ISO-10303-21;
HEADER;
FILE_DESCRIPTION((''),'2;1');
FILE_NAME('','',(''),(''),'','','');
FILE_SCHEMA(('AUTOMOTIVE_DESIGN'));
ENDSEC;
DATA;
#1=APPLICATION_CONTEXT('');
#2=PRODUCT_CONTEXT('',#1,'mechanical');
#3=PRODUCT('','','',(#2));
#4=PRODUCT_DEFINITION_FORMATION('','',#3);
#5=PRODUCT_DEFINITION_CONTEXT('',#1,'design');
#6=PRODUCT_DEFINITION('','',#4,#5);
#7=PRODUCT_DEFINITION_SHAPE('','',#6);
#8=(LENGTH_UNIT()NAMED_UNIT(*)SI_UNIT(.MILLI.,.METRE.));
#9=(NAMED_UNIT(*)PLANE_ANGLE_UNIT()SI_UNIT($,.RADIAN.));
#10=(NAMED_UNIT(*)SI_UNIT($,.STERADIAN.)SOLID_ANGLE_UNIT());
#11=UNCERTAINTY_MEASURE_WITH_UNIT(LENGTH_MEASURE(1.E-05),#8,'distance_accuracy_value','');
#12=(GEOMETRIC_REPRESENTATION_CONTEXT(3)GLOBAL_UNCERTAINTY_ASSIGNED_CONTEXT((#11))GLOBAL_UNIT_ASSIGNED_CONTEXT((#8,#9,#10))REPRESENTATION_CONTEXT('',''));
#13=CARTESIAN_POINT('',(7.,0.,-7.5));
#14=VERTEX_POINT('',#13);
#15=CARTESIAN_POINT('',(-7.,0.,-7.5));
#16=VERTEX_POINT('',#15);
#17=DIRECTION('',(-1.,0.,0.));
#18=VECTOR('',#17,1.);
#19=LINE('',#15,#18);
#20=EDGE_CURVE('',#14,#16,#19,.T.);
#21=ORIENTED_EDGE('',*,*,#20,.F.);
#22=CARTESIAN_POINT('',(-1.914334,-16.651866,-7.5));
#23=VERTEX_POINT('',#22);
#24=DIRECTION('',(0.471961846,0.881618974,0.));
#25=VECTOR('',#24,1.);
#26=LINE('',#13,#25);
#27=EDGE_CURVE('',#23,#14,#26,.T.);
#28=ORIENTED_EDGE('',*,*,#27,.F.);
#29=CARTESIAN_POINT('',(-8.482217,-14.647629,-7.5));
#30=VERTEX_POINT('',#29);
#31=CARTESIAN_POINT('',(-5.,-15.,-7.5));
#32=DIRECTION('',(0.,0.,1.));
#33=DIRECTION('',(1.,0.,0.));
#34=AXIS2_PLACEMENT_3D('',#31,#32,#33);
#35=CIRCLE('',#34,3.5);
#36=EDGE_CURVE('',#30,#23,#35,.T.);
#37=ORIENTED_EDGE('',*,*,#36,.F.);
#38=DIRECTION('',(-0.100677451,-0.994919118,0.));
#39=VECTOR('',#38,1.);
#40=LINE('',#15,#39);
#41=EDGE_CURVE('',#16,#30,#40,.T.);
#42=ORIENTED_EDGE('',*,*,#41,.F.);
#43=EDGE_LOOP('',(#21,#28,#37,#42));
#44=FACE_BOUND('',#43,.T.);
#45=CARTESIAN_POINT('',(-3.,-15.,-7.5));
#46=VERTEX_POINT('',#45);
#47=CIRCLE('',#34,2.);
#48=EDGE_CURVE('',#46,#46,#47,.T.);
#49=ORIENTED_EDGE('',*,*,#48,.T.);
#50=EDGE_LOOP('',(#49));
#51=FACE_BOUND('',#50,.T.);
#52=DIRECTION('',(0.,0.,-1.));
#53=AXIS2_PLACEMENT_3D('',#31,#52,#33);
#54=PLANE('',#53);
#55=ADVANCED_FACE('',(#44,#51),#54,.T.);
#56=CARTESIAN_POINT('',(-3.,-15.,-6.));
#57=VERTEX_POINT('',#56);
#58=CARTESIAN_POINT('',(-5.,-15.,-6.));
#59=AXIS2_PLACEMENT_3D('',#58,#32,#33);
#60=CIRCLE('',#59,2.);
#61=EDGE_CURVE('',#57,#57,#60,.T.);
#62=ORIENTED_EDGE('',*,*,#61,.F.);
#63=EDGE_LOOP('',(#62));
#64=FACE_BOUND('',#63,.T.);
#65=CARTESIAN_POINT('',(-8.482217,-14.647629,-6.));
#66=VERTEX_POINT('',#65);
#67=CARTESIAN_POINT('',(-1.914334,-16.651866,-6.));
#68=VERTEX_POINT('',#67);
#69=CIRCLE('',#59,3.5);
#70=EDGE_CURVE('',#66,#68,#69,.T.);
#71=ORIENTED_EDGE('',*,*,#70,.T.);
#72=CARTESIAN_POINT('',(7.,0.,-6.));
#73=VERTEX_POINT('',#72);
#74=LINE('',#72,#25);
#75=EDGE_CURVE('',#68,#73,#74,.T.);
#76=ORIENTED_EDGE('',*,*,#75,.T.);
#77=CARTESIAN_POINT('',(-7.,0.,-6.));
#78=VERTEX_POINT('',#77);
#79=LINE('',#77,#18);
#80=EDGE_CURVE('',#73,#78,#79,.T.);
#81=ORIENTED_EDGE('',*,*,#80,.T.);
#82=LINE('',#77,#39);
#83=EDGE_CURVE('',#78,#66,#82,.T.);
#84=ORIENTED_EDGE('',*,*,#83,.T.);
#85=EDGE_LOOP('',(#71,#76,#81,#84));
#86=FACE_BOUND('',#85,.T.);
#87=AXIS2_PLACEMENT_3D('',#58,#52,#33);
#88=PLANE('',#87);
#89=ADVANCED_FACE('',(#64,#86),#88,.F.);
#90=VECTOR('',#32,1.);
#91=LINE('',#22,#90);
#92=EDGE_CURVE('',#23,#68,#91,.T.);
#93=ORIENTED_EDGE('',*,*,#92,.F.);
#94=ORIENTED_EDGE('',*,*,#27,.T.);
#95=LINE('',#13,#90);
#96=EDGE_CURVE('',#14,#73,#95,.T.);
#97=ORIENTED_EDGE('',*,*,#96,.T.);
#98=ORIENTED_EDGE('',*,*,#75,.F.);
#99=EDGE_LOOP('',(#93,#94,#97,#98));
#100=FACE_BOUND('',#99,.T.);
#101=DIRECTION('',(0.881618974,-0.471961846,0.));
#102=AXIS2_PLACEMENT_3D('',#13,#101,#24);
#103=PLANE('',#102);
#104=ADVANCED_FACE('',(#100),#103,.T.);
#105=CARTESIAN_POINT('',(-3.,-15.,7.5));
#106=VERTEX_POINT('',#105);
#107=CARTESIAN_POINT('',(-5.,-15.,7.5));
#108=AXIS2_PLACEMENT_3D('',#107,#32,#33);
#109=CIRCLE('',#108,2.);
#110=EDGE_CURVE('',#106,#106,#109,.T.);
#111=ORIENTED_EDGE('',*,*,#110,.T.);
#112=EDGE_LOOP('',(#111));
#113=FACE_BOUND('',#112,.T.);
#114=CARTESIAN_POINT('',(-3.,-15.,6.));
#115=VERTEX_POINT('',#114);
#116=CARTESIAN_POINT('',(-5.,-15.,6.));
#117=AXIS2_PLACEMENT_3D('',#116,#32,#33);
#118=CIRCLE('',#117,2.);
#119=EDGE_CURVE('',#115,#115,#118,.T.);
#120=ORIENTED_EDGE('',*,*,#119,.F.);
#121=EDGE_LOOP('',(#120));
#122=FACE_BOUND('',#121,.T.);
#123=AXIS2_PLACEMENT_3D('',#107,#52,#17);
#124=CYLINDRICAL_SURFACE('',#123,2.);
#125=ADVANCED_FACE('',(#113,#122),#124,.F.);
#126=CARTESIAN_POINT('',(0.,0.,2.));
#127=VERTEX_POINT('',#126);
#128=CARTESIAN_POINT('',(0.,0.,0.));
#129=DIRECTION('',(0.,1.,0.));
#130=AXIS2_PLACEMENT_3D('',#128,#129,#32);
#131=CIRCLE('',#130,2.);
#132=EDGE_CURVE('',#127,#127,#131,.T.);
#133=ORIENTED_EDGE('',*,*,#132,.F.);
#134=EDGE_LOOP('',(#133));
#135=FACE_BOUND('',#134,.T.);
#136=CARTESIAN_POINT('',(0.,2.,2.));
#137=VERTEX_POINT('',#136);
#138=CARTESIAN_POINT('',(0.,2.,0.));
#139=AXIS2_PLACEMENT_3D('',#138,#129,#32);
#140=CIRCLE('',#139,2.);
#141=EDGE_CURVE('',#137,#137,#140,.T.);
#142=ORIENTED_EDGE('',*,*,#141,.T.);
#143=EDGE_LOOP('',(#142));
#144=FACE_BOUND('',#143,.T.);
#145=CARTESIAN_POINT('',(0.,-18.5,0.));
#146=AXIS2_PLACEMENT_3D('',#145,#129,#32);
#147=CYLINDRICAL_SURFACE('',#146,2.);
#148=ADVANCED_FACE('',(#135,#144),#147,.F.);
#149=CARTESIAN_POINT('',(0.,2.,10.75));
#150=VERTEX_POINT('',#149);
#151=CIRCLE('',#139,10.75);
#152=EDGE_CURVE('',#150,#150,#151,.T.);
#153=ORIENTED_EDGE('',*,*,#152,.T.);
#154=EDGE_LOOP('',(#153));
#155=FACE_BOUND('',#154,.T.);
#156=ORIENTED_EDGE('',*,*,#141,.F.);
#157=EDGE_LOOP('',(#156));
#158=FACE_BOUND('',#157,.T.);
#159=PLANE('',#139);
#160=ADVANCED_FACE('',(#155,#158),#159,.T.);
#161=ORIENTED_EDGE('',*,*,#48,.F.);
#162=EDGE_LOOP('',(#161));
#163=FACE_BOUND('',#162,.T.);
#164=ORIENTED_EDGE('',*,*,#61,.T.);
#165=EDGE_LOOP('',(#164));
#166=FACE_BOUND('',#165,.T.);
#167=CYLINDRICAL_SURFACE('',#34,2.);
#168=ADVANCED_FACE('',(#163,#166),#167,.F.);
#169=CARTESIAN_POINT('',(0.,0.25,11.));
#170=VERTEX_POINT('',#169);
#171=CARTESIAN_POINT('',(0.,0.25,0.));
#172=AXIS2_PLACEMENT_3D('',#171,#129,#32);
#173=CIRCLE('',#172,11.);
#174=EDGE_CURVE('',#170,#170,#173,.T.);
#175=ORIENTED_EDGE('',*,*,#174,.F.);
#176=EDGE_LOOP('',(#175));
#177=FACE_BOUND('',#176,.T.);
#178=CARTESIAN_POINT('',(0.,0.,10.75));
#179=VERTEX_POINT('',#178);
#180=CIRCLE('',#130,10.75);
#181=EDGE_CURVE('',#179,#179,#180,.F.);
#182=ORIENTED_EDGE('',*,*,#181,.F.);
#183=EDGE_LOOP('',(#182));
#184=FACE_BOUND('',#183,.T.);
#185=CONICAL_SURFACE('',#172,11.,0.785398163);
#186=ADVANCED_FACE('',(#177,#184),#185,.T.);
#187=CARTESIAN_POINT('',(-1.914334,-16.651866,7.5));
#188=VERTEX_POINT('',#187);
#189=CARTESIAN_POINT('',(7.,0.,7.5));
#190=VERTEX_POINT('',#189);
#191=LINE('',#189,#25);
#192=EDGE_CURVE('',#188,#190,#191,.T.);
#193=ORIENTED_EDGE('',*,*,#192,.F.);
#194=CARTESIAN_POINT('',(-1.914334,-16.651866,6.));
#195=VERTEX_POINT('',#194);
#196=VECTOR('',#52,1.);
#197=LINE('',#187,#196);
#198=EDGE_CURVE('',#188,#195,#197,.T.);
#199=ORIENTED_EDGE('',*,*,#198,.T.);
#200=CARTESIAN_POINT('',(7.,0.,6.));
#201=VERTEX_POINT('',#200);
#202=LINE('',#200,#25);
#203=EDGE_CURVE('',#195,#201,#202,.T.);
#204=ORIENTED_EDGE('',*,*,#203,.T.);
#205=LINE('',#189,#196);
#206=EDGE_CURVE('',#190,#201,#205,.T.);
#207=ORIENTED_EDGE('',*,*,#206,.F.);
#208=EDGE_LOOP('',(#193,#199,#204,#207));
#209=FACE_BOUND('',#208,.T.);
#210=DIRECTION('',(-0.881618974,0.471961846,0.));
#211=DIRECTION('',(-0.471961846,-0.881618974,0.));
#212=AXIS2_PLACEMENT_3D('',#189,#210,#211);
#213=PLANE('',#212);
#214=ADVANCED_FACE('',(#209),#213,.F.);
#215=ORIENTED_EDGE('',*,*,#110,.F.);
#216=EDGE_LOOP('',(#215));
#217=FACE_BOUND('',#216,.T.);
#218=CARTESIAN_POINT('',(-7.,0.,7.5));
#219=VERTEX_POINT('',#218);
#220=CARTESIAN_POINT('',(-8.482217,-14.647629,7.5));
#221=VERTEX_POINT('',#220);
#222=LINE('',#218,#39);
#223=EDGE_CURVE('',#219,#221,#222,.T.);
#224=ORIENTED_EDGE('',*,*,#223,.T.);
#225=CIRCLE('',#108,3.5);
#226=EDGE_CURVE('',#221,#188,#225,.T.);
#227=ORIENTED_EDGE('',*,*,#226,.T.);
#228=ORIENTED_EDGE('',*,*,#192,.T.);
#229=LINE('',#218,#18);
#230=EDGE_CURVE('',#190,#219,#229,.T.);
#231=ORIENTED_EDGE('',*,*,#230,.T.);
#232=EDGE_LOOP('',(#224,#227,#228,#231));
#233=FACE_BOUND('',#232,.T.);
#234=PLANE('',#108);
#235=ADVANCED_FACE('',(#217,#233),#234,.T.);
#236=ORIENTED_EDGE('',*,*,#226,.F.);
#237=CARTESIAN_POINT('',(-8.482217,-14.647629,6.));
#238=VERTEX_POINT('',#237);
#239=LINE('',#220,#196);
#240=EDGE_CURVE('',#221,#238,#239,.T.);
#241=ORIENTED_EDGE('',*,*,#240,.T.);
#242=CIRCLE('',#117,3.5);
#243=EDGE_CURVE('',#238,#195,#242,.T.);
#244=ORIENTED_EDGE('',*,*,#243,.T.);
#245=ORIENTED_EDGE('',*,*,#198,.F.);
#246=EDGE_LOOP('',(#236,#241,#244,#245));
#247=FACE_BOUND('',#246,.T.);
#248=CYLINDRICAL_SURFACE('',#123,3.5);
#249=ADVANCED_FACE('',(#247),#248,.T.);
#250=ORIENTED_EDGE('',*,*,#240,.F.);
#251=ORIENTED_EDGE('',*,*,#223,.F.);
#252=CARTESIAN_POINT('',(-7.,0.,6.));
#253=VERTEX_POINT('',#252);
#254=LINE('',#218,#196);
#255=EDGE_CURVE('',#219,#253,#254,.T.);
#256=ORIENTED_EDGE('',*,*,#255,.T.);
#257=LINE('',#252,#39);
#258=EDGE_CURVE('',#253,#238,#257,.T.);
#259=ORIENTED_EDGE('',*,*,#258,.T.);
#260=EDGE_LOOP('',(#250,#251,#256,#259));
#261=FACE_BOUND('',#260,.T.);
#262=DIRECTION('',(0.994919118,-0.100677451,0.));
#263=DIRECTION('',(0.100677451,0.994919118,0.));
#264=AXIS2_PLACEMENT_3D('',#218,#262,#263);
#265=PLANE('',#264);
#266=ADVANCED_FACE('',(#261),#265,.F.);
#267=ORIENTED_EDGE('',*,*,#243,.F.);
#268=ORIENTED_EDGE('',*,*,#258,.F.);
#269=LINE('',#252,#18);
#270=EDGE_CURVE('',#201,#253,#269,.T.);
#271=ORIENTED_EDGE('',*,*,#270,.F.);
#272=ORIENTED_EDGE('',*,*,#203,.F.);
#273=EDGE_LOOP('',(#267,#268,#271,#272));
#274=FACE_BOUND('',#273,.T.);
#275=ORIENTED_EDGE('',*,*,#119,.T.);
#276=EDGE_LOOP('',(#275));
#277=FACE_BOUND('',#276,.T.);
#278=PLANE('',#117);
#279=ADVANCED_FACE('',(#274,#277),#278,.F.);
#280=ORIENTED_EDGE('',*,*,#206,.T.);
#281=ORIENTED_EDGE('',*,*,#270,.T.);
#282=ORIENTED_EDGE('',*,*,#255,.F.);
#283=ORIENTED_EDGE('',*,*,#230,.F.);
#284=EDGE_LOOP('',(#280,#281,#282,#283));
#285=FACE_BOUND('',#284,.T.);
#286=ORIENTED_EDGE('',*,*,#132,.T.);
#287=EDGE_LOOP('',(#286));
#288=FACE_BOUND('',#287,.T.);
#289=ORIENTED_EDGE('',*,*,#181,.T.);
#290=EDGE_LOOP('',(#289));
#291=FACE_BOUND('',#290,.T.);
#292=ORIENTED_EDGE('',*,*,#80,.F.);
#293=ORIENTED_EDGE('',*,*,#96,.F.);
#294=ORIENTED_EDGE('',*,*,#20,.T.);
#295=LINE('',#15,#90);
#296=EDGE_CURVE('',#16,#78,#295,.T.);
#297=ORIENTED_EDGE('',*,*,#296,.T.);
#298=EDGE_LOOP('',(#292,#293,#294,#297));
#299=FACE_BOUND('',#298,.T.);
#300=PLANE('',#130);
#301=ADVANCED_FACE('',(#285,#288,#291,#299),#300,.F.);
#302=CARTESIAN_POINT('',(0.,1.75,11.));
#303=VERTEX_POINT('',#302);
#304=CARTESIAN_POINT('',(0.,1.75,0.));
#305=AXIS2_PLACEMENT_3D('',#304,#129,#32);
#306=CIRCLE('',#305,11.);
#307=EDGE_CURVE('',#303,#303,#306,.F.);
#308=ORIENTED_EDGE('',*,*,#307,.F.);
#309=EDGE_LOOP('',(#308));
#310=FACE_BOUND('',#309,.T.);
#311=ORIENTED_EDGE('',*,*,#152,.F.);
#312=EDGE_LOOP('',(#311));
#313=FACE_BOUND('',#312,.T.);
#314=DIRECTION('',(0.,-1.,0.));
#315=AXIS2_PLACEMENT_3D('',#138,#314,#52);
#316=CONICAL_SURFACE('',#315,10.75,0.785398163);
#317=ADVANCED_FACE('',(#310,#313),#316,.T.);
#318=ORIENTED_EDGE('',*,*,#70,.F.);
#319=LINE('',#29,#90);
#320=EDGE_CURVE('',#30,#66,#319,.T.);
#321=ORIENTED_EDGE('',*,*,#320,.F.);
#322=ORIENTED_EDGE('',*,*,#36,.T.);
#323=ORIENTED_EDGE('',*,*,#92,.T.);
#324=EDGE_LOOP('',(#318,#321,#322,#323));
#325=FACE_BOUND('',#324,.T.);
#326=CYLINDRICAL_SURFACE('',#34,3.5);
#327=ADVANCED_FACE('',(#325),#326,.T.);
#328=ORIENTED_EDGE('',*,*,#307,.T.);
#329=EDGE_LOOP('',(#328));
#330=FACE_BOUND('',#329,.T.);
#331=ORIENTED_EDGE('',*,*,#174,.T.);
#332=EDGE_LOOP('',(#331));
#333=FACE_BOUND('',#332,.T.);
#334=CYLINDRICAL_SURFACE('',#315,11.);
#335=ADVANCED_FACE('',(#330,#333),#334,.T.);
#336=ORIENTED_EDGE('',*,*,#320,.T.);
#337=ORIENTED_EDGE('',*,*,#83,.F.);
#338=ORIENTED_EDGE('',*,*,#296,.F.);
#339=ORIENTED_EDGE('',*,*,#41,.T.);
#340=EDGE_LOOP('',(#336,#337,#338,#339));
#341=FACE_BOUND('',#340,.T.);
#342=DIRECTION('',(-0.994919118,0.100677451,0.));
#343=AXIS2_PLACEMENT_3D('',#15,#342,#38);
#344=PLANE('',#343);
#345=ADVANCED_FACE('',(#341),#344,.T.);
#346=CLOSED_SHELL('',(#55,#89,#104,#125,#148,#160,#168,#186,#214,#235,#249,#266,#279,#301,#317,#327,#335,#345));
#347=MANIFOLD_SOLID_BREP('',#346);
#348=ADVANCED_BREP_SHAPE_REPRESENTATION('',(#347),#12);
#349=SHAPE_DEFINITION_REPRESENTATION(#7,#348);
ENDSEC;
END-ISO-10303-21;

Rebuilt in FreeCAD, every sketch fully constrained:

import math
import FreeCAD as App
import Part
import Sketcher
from FreeCAD import Vector


def edges_at(feature, points):
    """Names of the edges that pass closest to the given points."""
    edges = feature.Shape.Edges
    near = lambda p: min(range(len(edges)), key=lambda i: edges[i].distToShape(Part.Vertex(*p))[0])
    return sorted({f"Edge{near(p) + 1}" for p in points})

doc = App.newDocument("Part")
params = doc.addObject("Spreadsheet::Sheet", "Params")
for row, (alias, value) in enumerate([
    ("sketch1_diameter", "22 mm"),
    ("pad1_length", "2 mm"),
    ("chamfer_size", "0.25 mm"),
    ("sketch2_diameter", "4 mm"),
    ("sketch2_radius", "3.5 mm"),
    ("sketch2_width", "14 mm"),
    ("pad2_length", "1.5 mm"),
    ("sketch3_diameter", "4 mm"),
], start=1):
    params.set(f"A{row}", alias)
    params.set(f"B{row}", "=" + value)
    params.setAlias(f"B{row}", alias)

body = doc.addObject("PartDesign::Body", "Body")

# Sketch on XZ plane
sketch1 = doc.addObject("Sketcher::SketchObject", "Sketch")
body.addObject(sketch1)
sketch1.AttachmentSupport = (doc.XZ_Plane, [""])
sketch1.MapMode = "FlatFace"
sketch1.addGeometry(Part.Circle(Vector(0, 0, 0), Vector(0, 0, 1), 11), False)
sketch1.addConstraint([
    Sketcher.Constraint("Coincident", 0, 3, -1, 1),
    Sketcher.Constraint("Diameter", 0, 22.0),
])
sketch1.setExpression("Constraints[1]", "Params.sketch1_diameter")
pad1 = doc.addObject("PartDesign::Pad", "Pad")
body.addObject(pad1)
pad1.Profile = sketch1
pad1.setExpression("Length", "Params.pad1_length")
pad1.Reversed = True
doc.recompute()

chamfer = doc.addObject("PartDesign::Chamfer", "Chamfer")
body.addObject(chamfer)
chamfer.Base = (pad1, edges_at(pad1, [(0, 0, -11), (0, 2, -11)]))
chamfer.setExpression("Size", "Params.chamfer_size")

# Sketch on XY plane
sketch2 = doc.addObject("Sketcher::SketchObject", "Sketch001")
body.addObject(sketch2)
sketch2.AttachmentSupport = (doc.XY_Plane, [""])
sketch2.MapMode = "FlatFace"
sketch2.AttachmentOffset = App.Placement(Vector(0, 0, 6), App.Rotation())
sketch2.addGeometry([
    Part.LineSegment(Vector(7, 0, 0), Vector(-7, 0, 0)),  # 0
    Part.LineSegment(Vector(-7, 0, 0), Vector(-8.5, -14.6, 0)),  # 1
    Part.ArcOfCircle(Part.Circle(Vector(-5, -15, 0), Vector(0, 0, 1), 3.5), math.radians(174), math.radians(332)),  # 2
    Part.LineSegment(Vector(-1.9, -16.7, 0), Vector(7, 0, 0)),  # 3
    Part.Circle(Vector(-5, -15, 0), Vector(0, 0, 1), 2),  # 4
], False)
sketch2.addConstraint([
    Sketcher.Constraint("Coincident", 0, 2, 1, 1),
    Sketcher.Constraint("Tangent", 1, 2, 2, 1),
    Sketcher.Constraint("Tangent", 2, 2, 3, 1),
    Sketcher.Constraint("Coincident", 3, 2, 0, 1),
    Sketcher.Constraint("Horizontal", 0),
    Sketcher.Constraint("Coincident", 4, 3, 2, 3),
    Sketcher.Constraint("Symmetric", 0, 2, 3, 2, -1, 1),
    Sketcher.Constraint("Diameter", 4, 4.0),
    Sketcher.Constraint("Radius", 2, 3.5),
    Sketcher.Constraint("DistanceX", 0, 2, 0, 1, 14.0),
    Sketcher.Constraint("DistanceX", 2, 3, -1, 1, 5.0),
    Sketcher.Constraint("DistanceY", 2, 3, -1, 1, 15.0),
])
sketch2.setExpression("Constraints[7]", "Params.sketch2_diameter")
sketch2.setExpression("Constraints[8]", "Params.sketch2_radius")
sketch2.setExpression("Constraints[9]", "Params.sketch2_width")
pad2 = doc.addObject("PartDesign::Pad", "Pad001")
body.addObject(pad2)
pad2.Profile = sketch2
pad2.setExpression("Length", "Params.pad2_length")
doc.recompute()

mirrored = doc.addObject("PartDesign::Mirrored", "Mirrored")
body.addObject(mirrored)
mirrored.Originals = [pad2]
mirrored.MirrorPlane = (doc.XY_Plane, [""])
body.Tip = mirrored

# Sketch on XZ plane
sketch3 = doc.addObject("Sketcher::SketchObject", "Sketch002")
body.addObject(sketch3)
sketch3.AttachmentSupport = (doc.XZ_Plane, [""])
sketch3.MapMode = "FlatFace"
sketch3.AttachmentOffset = App.Placement(Vector(0, 0, -2), App.Rotation())
sketch3.addGeometry(Part.Circle(Vector(0, 0, 0), Vector(0, 0, 1), 2), False)
sketch3.addConstraint([
    Sketcher.Constraint("Coincident", 0, 3, -1, 1),
    Sketcher.Constraint("Diameter", 0, 4.0),
])
sketch3.setExpression("Constraints[1]", "Params.sketch3_diameter")
pocket1 = doc.addObject("PartDesign::Pocket", "Pocket")
body.addObject(pocket1)
pocket1.Profile = sketch3
pocket1.Type = "ThroughAll"
pocket1.Reversed = True

doc.recompute()
